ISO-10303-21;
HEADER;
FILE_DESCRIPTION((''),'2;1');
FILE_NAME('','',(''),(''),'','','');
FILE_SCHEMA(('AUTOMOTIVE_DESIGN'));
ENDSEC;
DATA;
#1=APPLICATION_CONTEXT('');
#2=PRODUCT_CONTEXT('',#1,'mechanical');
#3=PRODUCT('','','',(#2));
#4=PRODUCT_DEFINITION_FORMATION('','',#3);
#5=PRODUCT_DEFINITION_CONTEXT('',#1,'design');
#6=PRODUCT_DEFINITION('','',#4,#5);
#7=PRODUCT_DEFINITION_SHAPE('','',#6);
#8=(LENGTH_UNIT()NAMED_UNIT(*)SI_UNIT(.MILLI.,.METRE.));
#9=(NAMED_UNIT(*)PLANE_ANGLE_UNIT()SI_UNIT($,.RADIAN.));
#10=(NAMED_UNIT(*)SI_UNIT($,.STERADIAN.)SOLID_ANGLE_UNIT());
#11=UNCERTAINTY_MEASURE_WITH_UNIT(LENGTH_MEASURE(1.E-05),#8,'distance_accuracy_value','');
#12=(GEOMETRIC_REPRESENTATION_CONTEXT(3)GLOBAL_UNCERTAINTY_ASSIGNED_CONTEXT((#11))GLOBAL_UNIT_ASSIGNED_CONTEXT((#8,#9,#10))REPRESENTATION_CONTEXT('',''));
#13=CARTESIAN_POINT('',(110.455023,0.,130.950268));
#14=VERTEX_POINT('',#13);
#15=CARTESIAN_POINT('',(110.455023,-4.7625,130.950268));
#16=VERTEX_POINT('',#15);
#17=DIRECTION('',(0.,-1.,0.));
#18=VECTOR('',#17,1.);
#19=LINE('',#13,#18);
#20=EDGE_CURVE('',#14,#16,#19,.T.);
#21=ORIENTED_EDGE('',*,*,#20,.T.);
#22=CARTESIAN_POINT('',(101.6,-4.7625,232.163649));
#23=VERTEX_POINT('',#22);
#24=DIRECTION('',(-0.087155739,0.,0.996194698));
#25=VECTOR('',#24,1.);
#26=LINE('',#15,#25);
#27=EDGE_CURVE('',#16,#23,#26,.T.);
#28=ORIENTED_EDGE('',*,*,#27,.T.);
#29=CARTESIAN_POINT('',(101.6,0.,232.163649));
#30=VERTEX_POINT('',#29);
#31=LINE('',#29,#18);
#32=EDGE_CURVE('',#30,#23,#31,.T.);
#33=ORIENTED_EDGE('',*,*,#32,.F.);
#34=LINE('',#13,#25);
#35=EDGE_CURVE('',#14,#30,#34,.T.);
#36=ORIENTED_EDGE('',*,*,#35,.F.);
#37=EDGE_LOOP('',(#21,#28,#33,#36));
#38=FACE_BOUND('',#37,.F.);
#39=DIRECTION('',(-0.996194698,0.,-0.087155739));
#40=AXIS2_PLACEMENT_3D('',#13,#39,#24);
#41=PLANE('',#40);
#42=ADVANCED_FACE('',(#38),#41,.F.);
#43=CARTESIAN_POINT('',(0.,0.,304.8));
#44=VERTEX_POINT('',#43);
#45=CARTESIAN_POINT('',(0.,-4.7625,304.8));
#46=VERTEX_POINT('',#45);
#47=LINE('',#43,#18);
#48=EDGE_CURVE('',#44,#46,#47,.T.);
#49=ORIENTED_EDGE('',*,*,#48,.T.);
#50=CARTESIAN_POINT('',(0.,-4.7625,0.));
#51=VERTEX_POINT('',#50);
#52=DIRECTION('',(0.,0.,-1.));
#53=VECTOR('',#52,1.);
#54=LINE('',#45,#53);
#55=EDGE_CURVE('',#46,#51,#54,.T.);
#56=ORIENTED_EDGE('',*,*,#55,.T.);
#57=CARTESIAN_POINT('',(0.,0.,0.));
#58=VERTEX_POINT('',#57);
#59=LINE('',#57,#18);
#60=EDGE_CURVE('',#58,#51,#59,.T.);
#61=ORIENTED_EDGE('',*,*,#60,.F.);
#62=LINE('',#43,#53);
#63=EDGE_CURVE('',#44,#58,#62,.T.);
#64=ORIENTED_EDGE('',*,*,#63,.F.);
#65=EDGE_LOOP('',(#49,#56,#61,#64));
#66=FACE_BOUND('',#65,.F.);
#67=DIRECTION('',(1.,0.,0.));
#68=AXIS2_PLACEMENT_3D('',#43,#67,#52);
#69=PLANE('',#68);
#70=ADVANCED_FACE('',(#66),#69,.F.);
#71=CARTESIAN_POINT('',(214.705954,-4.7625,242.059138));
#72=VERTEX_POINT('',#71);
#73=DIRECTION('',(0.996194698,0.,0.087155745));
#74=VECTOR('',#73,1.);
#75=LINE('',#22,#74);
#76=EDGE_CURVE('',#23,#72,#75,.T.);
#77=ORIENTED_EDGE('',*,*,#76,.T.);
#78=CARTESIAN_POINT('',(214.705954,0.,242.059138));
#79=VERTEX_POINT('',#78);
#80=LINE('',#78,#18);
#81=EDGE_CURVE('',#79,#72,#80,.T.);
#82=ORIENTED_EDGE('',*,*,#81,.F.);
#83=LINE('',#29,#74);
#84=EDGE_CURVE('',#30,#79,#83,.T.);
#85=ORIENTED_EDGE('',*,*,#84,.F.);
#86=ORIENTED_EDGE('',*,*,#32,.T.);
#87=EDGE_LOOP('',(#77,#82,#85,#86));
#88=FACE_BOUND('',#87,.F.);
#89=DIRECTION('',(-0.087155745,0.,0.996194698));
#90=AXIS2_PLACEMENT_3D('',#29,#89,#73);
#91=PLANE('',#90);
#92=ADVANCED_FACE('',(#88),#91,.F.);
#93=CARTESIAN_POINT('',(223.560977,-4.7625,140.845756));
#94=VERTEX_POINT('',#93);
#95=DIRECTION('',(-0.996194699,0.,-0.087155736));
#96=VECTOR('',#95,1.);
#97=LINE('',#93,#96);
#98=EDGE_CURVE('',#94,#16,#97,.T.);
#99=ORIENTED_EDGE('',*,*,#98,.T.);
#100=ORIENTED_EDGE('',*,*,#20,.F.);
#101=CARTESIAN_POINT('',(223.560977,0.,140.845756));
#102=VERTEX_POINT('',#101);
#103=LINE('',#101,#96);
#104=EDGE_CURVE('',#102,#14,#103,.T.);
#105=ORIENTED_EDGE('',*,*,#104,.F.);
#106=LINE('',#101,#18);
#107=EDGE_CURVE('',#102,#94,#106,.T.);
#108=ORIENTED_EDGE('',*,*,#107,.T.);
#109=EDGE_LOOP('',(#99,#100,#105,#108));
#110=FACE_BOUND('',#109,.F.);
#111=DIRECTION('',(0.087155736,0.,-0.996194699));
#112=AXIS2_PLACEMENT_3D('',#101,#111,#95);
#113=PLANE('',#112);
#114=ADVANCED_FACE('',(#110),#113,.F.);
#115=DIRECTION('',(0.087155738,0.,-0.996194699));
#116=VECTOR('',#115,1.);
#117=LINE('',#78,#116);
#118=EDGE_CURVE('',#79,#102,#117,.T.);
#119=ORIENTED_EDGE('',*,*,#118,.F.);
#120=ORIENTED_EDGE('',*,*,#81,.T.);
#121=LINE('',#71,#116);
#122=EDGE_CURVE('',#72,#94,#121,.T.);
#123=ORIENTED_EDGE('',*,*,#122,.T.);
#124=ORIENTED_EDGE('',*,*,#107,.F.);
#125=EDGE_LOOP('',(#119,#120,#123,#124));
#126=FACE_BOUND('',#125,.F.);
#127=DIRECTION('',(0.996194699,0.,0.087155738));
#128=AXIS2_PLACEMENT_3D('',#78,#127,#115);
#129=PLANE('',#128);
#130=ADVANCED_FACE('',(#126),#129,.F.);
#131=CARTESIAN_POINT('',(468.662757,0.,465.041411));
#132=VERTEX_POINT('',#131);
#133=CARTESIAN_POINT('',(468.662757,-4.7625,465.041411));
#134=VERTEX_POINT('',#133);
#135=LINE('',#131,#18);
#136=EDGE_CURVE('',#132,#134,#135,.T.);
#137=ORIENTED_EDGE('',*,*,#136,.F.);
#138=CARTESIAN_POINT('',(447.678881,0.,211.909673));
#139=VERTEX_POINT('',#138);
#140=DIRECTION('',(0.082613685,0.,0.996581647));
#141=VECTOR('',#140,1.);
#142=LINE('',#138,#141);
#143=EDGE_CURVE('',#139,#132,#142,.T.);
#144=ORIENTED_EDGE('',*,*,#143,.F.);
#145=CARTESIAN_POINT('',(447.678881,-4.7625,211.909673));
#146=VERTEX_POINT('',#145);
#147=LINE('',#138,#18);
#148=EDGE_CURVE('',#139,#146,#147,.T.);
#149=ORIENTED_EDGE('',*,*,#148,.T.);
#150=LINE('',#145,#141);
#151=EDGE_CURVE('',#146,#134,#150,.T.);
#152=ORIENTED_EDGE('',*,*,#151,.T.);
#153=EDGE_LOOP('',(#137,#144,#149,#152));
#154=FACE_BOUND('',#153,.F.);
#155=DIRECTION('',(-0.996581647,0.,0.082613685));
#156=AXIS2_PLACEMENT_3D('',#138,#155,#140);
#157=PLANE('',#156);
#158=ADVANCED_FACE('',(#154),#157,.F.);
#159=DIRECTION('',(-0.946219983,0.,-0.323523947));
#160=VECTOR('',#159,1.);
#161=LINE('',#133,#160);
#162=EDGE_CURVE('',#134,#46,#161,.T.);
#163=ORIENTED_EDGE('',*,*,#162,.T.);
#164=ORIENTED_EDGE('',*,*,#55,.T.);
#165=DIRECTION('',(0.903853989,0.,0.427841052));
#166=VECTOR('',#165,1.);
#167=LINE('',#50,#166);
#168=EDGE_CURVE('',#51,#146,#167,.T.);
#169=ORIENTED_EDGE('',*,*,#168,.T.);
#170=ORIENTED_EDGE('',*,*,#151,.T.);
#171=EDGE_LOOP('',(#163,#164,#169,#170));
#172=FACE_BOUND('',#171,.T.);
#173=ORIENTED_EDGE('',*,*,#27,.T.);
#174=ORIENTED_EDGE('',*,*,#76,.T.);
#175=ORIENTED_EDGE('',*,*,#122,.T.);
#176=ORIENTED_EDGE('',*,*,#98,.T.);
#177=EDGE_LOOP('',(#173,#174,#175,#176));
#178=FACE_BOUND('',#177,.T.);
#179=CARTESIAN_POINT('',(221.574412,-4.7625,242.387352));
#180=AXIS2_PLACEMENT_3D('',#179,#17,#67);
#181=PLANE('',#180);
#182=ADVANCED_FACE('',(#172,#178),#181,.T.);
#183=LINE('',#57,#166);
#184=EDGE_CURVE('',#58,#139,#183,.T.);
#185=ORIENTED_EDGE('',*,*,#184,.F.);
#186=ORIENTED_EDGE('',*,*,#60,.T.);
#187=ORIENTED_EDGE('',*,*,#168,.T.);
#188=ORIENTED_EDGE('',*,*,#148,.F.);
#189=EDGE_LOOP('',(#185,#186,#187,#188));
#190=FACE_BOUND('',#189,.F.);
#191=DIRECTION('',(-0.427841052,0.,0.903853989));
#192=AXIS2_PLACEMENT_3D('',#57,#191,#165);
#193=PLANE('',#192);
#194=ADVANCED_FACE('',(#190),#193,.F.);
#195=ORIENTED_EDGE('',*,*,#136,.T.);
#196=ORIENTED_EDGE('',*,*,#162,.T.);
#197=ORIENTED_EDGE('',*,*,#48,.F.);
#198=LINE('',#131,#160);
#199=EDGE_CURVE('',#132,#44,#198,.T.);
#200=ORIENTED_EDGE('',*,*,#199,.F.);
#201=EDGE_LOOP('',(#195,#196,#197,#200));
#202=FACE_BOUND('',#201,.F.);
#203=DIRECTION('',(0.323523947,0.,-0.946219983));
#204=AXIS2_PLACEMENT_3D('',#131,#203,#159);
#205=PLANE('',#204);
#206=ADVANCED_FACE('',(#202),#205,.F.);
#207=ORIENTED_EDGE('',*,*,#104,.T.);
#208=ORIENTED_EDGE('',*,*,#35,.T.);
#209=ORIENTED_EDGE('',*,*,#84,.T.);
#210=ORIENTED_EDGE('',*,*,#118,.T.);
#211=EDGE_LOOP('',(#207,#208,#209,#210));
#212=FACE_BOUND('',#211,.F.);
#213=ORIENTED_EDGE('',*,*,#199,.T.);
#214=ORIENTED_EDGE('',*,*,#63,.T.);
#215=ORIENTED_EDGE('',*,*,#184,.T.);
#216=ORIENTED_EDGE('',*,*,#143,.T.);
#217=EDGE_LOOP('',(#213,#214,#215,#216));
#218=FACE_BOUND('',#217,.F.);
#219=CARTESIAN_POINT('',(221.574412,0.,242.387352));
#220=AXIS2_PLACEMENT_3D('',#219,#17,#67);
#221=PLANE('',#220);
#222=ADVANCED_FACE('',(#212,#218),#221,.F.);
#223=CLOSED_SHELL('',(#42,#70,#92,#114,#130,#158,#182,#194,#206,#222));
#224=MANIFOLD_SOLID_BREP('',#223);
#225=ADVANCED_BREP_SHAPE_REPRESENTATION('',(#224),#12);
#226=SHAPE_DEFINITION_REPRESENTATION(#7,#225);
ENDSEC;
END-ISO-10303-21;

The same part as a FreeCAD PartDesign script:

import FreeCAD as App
import Part
import Sketcher
from FreeCAD import Vector
Q = App.Units.Quantity

doc = App.newDocument("Part")
body = doc.addObject("PartDesign::Body", "Body")

sketch1 = doc.addObject("Sketcher::SketchObject", "Sketch")
body.addObject(sketch1)
sketch1.AttachmentSupport = (doc.XZ_Plane, [""])
sketch1.MapMode = "FlatFace"
sketch1.addGeometry([
    Part.LineSegment(Vector(0, 304.8, 0), Vector(0, 0, 0)),
    Part.LineSegment(Vector(0, 0, 0), Vector(447.678881, 211.909673, 0)),
    Part.LineSegment(Vector(447.678881, 211.909673, 0), Vector(468.662757, 465.041411, 0)),
    Part.LineSegment(Vector(468.662757, 465.041411, 0), Vector(0, 304.8, 0)),
    Part.LineSegment(Vector(223.560977, 140.845756, 0), Vector(110.455023, 130.950268, 0)),
    Part.LineSegment(Vector(110.455023, 130.950268, 0), Vector(101.6, 232.163649, 0)),
    Part.LineSegment(Vector(101.6, 232.163649, 0), Vector(214.705954, 242.059138, 0)),
    Part.LineSegment(Vector(214.705954, 242.059138, 0), Vector(223.560977, 140.845756, 0)),
], False)
sketch1.addConstraint([
    Sketcher.Constraint("Coincident", 0, 2, 1, 1),
    Sketcher.Constraint("Coincident", 1, 2, 2, 1),
    Sketcher.Constraint("Coincident", 2, 2, 3, 1),
    Sketcher.Constraint("Coincident", 3, 2, 0, 1),
    Sketcher.Constraint("Coincident", 4, 2, 5, 1),
    Sketcher.Constraint("Coincident", 5, 2, 6, 1),
    Sketcher.Constraint("Coincident", 6, 2, 7, 1),
    Sketcher.Constraint("Coincident", 7, 2, 4, 1),
    Sketcher.Constraint("Vertical", 0),
    Sketcher.Constraint("Coincident", 0, 2, -1, 1),
    Sketcher.Constraint("Perpendicular", 4, 5),
    Sketcher.Constraint("Perpendicular", 5, 6),
    Sketcher.Constraint("Perpendicular", 6, 7),
    Sketcher.Constraint("Equal", 1, 3),
    Sketcher.Constraint("DistanceY", 0, 2, 0, 1, Q("12 in")),
    Sketcher.Constraint("Distance", 2, Q("10 in")),
    Sketcher.Constraint("Distance", 5, Q("4 in")),
    Sketcher.Constraint("DistanceX", -1, 1, 5, 2, Q("4 in")),
    Sketcher.Constraint("Angle", 4, Q("-175 deg")),
    Sketcher.Constraint("Distance", 1, Q("19.5 in")),
    Sketcher.Constraint("Distance", 4, Q("4.47 in")),
    Sketcher.Constraint("DistanceX", -1, 1, 1, 2, Q("447.678881 mm")),
    Sketcher.Constraint("DistanceY", -1, 1, 4, 2, Q("130.950268 mm")),
])
pad1 = doc.addObject("PartDesign::Pad", "Pad")
body.addObject(pad1)
pad1.Profile = sketch1
pad1.Length = Q("0.1875 in")

doc.recompute()
